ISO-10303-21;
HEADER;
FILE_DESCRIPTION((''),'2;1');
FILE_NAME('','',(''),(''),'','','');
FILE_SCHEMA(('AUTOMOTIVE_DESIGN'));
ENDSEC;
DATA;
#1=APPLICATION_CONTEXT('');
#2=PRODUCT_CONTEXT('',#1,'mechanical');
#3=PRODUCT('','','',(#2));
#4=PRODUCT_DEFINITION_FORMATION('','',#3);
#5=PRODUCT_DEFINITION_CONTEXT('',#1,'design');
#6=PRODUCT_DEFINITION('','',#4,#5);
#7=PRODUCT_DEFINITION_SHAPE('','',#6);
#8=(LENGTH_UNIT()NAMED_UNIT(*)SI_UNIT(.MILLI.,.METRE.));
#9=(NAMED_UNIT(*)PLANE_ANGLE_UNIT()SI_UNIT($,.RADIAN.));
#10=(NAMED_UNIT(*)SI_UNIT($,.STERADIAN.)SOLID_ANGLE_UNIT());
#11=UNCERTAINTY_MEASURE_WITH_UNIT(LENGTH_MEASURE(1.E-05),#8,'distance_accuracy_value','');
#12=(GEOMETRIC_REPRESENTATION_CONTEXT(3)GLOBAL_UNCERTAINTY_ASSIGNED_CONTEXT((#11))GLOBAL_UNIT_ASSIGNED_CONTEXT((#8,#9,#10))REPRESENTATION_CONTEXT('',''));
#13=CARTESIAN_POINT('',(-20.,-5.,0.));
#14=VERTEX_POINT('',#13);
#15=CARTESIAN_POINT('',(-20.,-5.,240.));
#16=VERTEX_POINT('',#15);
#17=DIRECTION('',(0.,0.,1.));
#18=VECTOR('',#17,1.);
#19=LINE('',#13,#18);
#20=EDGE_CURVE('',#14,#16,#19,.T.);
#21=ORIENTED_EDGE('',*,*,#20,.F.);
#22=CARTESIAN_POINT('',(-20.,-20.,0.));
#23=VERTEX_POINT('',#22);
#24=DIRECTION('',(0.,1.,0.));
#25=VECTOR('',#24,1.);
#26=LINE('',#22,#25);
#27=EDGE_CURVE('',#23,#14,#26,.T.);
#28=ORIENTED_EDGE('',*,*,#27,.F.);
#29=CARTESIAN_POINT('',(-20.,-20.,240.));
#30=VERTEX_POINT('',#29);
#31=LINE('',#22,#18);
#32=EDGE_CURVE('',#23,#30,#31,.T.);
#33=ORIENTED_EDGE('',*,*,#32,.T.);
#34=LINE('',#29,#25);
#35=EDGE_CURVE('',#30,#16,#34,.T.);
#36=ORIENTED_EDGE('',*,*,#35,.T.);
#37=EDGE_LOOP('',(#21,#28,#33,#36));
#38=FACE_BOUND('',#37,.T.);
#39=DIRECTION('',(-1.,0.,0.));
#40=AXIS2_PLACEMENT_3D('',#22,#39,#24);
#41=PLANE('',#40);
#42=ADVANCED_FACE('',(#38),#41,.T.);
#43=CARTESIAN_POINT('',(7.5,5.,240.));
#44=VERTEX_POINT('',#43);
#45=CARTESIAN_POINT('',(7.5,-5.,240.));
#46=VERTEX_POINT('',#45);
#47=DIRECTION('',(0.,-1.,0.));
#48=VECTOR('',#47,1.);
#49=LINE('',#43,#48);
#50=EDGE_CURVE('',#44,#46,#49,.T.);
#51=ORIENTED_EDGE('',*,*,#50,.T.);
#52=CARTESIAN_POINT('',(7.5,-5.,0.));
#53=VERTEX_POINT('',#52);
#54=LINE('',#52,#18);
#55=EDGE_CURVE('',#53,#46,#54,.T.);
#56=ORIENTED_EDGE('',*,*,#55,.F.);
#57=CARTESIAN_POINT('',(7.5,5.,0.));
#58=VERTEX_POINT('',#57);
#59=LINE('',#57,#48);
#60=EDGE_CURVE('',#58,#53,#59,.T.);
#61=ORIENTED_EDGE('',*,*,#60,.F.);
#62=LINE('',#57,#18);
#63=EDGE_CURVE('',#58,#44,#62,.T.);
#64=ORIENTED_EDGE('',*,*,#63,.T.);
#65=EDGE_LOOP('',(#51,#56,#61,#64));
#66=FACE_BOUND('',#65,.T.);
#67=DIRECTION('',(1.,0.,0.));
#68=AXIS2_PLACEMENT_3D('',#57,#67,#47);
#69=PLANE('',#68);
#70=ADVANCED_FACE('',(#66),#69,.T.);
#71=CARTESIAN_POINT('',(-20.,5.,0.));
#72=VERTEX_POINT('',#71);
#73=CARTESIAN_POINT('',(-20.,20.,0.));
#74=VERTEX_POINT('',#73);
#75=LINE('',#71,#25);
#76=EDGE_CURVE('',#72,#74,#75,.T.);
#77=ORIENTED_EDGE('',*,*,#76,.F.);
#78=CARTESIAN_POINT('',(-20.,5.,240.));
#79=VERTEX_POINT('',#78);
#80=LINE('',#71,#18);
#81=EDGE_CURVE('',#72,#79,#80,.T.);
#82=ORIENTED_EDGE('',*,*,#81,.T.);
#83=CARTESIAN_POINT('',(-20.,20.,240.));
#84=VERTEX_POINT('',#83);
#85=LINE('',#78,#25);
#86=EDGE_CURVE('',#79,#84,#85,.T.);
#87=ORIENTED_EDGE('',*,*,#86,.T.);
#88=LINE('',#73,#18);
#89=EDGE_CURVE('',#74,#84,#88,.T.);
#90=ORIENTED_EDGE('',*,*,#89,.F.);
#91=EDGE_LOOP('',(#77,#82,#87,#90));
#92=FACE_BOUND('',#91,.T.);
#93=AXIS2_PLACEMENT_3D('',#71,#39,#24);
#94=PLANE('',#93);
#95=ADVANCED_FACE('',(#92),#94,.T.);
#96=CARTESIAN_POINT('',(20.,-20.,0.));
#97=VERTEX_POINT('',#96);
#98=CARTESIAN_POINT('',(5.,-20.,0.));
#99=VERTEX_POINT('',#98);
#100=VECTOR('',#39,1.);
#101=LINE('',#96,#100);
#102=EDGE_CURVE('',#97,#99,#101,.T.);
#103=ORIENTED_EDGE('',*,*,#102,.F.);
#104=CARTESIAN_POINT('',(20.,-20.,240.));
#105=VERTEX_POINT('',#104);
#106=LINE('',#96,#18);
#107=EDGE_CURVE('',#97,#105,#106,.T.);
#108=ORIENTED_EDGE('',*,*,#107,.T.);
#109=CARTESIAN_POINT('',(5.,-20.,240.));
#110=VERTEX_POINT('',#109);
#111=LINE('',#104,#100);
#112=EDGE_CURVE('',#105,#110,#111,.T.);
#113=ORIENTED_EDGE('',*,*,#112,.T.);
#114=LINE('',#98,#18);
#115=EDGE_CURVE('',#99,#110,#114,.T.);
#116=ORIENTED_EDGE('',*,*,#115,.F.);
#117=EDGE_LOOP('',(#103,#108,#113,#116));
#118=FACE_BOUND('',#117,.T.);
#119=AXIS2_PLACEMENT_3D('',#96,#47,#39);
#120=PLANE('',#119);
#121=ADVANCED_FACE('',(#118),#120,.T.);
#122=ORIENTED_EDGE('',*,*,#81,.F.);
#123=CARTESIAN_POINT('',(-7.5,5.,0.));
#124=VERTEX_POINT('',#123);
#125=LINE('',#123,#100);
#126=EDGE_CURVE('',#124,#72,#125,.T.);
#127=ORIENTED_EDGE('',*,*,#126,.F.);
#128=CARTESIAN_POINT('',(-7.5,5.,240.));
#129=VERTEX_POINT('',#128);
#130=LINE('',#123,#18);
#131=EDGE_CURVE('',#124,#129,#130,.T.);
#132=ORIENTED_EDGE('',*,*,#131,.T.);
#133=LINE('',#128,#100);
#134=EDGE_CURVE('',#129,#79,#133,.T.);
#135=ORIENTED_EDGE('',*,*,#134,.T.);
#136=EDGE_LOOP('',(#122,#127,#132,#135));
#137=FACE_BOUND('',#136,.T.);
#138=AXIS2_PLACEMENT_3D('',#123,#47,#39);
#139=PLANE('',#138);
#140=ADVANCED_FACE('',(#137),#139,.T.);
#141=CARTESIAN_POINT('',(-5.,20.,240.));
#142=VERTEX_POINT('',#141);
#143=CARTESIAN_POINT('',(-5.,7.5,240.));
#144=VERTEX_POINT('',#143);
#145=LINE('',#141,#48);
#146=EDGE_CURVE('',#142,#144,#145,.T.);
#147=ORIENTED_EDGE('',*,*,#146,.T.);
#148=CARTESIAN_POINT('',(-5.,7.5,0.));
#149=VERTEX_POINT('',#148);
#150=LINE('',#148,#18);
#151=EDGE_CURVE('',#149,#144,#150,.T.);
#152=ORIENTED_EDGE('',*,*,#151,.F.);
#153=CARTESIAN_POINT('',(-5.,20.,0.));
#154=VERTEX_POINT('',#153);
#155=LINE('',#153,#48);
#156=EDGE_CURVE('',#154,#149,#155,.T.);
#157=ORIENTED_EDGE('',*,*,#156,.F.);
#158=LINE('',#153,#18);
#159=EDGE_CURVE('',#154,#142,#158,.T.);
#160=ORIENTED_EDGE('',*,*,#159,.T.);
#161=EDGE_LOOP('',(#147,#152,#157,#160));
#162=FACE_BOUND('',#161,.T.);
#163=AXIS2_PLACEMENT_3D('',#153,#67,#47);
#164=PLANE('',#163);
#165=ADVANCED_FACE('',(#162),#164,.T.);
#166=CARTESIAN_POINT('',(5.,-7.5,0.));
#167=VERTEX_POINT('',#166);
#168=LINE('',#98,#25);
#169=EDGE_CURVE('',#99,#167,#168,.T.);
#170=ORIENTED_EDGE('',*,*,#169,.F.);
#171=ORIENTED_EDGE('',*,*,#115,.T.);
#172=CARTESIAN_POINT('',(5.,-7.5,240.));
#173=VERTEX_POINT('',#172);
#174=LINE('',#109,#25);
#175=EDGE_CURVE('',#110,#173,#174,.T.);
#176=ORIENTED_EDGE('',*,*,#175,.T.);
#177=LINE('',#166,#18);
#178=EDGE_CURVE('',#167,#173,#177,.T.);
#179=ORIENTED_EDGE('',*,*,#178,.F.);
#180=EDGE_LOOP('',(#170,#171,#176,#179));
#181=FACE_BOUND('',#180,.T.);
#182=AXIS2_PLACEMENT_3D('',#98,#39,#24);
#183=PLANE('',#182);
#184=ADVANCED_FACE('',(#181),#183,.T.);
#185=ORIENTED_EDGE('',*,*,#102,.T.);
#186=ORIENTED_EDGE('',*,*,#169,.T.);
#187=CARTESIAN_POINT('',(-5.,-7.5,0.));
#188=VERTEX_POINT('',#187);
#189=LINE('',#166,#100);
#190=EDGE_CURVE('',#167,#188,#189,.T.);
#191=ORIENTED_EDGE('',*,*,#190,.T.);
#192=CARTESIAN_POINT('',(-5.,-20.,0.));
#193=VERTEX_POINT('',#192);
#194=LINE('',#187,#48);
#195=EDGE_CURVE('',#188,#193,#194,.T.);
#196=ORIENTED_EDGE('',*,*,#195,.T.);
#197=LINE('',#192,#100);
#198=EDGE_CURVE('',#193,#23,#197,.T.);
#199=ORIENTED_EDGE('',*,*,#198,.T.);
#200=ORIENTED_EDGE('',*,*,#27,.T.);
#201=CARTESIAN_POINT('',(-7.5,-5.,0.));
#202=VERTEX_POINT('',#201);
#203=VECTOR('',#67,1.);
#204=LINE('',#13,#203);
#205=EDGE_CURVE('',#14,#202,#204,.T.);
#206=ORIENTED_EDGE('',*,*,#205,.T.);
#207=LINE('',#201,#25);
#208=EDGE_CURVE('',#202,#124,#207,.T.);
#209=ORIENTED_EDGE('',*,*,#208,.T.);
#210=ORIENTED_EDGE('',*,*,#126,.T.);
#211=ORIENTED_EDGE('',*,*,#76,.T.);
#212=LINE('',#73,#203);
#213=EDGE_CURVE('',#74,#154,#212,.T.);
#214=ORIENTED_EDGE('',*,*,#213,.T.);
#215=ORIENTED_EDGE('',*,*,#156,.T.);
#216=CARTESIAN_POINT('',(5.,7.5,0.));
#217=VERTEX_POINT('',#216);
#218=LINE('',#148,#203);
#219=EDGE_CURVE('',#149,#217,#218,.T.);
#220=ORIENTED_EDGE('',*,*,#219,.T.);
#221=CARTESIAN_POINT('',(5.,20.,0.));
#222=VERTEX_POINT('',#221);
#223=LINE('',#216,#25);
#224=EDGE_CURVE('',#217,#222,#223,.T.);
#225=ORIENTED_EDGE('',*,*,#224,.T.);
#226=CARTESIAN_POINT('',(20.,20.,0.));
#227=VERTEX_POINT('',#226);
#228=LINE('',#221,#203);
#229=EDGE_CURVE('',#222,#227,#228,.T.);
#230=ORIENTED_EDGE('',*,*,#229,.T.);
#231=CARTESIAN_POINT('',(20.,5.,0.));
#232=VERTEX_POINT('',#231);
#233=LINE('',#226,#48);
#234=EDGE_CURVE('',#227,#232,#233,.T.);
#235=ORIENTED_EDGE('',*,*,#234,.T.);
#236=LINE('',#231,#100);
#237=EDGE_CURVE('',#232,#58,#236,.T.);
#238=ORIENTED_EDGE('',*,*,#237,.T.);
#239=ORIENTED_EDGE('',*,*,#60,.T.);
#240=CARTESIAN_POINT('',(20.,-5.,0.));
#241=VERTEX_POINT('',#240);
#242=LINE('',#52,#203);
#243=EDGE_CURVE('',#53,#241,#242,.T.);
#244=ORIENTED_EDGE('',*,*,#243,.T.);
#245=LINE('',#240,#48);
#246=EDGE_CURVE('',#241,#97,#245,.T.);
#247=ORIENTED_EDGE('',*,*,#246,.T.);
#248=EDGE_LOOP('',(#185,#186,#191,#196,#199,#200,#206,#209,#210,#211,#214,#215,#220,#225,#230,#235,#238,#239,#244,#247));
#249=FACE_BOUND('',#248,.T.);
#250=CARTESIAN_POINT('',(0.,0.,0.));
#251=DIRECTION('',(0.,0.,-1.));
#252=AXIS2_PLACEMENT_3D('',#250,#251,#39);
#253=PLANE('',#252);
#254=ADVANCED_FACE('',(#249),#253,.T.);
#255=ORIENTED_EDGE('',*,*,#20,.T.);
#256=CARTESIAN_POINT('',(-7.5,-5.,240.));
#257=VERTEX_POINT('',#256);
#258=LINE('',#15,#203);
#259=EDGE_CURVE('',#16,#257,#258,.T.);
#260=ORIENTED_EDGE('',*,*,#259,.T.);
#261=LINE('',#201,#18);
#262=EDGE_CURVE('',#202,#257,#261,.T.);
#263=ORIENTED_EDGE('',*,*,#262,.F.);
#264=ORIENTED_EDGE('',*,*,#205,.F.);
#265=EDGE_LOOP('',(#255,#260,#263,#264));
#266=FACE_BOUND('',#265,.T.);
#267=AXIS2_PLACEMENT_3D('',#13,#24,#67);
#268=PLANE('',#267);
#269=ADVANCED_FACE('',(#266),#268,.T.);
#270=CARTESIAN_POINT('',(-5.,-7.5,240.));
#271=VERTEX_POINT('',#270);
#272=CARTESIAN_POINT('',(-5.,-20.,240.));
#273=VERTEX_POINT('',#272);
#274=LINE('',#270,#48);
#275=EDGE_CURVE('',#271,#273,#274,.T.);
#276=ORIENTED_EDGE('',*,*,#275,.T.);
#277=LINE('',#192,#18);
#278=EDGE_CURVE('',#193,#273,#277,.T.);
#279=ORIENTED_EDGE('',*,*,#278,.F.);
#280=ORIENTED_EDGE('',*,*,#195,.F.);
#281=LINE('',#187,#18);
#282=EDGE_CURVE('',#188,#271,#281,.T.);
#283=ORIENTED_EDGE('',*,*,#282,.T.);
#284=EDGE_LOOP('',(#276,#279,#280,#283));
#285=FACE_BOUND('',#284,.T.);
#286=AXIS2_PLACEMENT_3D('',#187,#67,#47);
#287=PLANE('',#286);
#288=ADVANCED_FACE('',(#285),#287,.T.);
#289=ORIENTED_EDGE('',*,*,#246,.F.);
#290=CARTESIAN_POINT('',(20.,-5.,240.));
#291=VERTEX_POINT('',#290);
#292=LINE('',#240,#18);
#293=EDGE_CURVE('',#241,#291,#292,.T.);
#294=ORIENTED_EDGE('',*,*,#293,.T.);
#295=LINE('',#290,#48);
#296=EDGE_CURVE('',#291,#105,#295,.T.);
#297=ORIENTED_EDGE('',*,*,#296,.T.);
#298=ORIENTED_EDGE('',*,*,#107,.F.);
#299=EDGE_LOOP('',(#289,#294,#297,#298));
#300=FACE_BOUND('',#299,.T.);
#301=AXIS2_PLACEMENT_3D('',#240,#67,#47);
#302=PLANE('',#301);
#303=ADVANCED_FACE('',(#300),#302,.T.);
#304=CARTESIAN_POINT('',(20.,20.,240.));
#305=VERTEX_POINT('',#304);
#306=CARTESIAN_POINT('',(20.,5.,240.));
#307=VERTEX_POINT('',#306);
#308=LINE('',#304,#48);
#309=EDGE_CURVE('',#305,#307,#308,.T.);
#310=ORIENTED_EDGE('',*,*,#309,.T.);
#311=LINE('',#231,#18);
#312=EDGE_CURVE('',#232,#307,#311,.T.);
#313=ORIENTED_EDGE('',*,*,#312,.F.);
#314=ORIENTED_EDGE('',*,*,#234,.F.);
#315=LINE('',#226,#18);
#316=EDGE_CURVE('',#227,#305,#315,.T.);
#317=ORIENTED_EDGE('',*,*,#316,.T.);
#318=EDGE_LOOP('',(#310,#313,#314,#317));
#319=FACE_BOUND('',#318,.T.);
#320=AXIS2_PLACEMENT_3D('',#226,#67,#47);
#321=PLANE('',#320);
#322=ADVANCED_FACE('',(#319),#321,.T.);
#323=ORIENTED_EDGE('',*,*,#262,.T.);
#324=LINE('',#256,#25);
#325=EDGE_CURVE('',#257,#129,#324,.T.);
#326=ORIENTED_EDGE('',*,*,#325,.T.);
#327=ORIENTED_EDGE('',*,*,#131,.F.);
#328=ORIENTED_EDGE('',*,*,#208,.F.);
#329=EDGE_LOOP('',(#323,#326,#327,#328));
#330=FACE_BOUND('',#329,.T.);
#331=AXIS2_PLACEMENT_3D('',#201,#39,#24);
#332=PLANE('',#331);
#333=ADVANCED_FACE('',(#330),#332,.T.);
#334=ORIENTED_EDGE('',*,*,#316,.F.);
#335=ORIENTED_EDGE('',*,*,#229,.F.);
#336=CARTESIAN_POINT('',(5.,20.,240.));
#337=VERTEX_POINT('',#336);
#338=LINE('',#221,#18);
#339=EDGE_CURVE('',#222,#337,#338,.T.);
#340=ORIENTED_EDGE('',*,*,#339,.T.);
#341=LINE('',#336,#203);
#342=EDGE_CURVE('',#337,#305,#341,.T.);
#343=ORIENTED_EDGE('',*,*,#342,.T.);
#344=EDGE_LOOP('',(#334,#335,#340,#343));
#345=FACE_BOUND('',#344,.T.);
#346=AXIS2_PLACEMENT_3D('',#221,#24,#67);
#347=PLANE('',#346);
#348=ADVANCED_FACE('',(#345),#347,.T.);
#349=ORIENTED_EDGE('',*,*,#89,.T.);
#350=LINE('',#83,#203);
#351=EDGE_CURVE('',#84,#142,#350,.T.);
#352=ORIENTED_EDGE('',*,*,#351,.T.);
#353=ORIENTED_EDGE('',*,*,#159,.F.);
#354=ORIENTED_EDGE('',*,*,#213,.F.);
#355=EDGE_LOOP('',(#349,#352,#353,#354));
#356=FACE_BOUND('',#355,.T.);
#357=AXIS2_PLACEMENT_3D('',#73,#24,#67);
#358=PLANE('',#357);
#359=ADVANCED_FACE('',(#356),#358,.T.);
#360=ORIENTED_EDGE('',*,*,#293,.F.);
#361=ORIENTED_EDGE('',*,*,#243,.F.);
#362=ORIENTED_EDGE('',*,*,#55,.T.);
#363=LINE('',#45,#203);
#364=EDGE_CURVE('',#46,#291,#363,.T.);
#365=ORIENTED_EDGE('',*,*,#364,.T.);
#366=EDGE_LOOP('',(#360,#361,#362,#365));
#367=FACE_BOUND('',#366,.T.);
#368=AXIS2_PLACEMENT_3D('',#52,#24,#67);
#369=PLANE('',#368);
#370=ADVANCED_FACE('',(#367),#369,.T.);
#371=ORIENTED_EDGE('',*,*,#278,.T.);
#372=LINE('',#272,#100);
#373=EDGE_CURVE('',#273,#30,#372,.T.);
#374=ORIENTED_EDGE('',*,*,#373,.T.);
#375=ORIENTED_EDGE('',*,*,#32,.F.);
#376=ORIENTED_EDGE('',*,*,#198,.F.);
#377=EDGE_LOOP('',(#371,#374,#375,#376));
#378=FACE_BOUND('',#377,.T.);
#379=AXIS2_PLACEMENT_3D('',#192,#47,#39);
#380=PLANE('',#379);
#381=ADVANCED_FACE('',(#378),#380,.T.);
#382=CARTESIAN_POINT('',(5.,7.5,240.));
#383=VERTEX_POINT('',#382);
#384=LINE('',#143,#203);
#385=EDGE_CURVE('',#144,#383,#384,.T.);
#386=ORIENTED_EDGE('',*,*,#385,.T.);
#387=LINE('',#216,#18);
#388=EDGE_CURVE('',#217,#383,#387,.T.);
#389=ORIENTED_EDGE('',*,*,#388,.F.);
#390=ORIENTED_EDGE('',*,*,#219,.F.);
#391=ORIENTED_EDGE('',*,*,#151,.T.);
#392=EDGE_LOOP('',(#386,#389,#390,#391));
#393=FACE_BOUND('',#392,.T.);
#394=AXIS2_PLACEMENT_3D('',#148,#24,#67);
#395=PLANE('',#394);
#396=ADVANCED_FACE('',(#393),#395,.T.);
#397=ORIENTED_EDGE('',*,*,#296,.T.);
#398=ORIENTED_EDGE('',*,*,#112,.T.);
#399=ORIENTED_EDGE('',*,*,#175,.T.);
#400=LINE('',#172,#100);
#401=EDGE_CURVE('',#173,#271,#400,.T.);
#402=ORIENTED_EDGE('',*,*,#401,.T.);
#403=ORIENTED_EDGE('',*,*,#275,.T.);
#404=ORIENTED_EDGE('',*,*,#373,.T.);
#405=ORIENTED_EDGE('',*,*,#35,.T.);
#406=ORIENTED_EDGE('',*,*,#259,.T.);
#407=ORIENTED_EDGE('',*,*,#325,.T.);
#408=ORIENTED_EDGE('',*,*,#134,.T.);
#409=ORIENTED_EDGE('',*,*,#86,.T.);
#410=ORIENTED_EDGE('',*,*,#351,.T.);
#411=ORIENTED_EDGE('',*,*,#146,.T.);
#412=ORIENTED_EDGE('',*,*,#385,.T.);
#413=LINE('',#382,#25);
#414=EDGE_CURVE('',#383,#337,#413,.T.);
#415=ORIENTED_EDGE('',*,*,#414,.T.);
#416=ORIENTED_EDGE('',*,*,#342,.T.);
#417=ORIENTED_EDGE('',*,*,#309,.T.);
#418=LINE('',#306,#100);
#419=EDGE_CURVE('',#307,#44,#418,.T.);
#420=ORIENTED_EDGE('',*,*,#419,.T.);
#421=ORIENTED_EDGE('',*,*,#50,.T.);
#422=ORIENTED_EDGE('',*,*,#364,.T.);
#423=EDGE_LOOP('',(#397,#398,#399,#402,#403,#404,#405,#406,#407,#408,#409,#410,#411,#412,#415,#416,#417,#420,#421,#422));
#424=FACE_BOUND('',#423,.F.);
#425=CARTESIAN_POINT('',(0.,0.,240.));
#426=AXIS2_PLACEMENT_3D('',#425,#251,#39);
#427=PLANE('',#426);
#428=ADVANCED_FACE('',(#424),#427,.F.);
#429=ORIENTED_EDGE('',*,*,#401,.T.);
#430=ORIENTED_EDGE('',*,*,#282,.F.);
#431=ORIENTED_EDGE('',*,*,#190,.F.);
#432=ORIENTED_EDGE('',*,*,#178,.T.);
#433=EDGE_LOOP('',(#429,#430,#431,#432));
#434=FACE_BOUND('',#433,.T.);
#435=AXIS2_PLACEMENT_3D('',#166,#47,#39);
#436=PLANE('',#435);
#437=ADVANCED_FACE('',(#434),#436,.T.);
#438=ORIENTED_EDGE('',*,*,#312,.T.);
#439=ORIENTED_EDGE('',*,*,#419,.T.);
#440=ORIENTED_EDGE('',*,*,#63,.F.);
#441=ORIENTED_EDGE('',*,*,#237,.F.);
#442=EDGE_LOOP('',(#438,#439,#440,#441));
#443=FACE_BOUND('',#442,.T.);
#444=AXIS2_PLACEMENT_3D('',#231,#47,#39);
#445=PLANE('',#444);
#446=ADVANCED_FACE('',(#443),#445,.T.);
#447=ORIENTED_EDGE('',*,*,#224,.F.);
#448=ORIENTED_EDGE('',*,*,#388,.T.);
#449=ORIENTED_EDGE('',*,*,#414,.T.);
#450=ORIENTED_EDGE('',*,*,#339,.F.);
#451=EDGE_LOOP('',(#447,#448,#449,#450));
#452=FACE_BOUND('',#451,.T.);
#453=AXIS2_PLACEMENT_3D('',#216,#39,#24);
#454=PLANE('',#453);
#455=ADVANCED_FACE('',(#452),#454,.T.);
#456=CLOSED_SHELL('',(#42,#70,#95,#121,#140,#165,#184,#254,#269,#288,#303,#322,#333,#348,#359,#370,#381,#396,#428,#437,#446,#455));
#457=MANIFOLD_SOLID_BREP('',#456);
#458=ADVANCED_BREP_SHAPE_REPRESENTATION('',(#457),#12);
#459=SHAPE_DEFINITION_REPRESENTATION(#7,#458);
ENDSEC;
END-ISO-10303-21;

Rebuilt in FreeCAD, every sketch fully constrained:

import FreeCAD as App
import Part
import Sketcher

doc = App.newDocument("Part")
params = doc.addObject("Spreadsheet::Sheet", "Params")
for row, (alias, value) in enumerate([
    ("sketch1_width", "15 mm"),
    ("sketch1_width2", "10 mm"),
    ("sketch1_width3", "12.5 mm"),
    ("pad1_length", "240 mm"),
], start=1):
    params.set(f"A{row}", alias)
    params.set(f"B{row}", "=" + value)
    params.setAlias(f"B{row}", alias)

body = doc.addObject("PartDesign::Body", "Body")

# Sketch on XY plane
sketch1 = body.newObject("Sketcher::SketchObject", "Sketch")
sketch1.AttachmentSupport = (doc.getObject("XY_Plane"), [""])
sketch1.MapMode = "FlatFace"
sketch1.addGeometry([
    Part.LineSegment(App.Vector(-20, -5, 0), App.Vector(-20, -20, 0)),  # 0
    Part.LineSegment(App.Vector(-20, -20, 0), App.Vector(-5, -20, 0)),  # 1
    Part.LineSegment(App.Vector(-5, -20, 0), App.Vector(-5, -8, 0)),  # 2
    Part.LineSegment(App.Vector(-5, -8, 0), App.Vector(5, -8, 0)),  # 3
    Part.LineSegment(App.Vector(5, -8, 0), App.Vector(5, -20, 0)),  # 4
    Part.LineSegment(App.Vector(5, -20, 0), App.Vector(20, -20, 0)),  # 5
    Part.LineSegment(App.Vector(20, -20, 0), App.Vector(20, -5, 0)),  # 6
    Part.LineSegment(App.Vector(20, -5, 0), App.Vector(8, -5, 0)),  # 7
    Part.LineSegment(App.Vector(8, -5, 0), App.Vector(8, 5, 0)),  # 8
    Part.LineSegment(App.Vector(8, 5, 0), App.Vector(20, 5, 0)),  # 9
    Part.LineSegment(App.Vector(20, 5, 0), App.Vector(20, 20, 0)),  # 10
    Part.LineSegment(App.Vector(20, 20, 0), App.Vector(5, 20, 0)),  # 11
    Part.LineSegment(App.Vector(5, 20, 0), App.Vector(5, 8, 0)),  # 12
    Part.LineSegment(App.Vector(5, 8, 0), App.Vector(-5, 8, 0)),  # 13
    Part.LineSegment(App.Vector(-5, 8, 0), App.Vector(-5, 20, 0)),  # 14
    Part.LineSegment(App.Vector(-5, 20, 0), App.Vector(-20, 20, 0)),  # 15
    Part.LineSegment(App.Vector(-20, 20, 0), App.Vector(-20, 5, 0)),  # 16
    Part.LineSegment(App.Vector(-20, 5, 0), App.Vector(-8, 5, 0)),  # 17
    Part.LineSegment(App.Vector(-8, 5, 0), App.Vector(-8, -5, 0)),  # 18
    Part.LineSegment(App.Vector(-8, -5, 0), App.Vector(-20, -5, 0)),  # 19
], False)
sketch1.addConstraint([
    Sketcher.Constraint("Coincident", 0, 2, 1, 1),
    Sketcher.Constraint("Coincident", 1, 2, 2, 1),
    Sketcher.Constraint("Coincident", 2, 2, 3, 1),
    Sketcher.Constraint("Coincident", 3, 2, 4, 1),
    Sketcher.Constraint("Coincident", 4, 2, 5, 1),
    Sketcher.Constraint("Coincident", 5, 2, 6, 1),
    Sketcher.Constraint("Coincident", 6, 2, 7, 1),
    Sketcher.Constraint("Coincident", 7, 2, 8, 1),
    Sketcher.Constraint("Coincident", 8, 2, 9, 1),
    Sketcher.Constraint("Coincident", 9, 2, 10, 1),
    Sketcher.Constraint("Coincident", 10, 2, 11, 1),
    Sketcher.Constraint("Coincident", 11, 2, 12, 1),
    Sketcher.Constraint("Coincident", 12, 2, 13, 1),
    Sketcher.Constraint("Coincident", 13, 2, 14, 1),
    Sketcher.Constraint("Coincident", 14, 2, 15, 1),
    Sketcher.Constraint("Coincident", 15, 2, 16, 1),
    Sketcher.Constraint("Coincident", 16, 2, 17, 1),
    Sketcher.Constraint("Coincident", 17, 2, 18, 1),
    Sketcher.Constraint("Coincident", 18, 2, 19, 1),
    Sketcher.Constraint("Coincident", 19, 2, 0, 1),
    Sketcher.Constraint("Vertical", 0),
    Sketcher.Constraint("Horizontal", 1),
    Sketcher.Constraint("Vertical", 2),
    Sketcher.Constraint("Horizontal", 3),
    Sketcher.Constraint("Vertical", 4),
    Sketcher.Constraint("Horizontal", 5),
    Sketcher.Constraint("Vertical", 6),
    Sketcher.Constraint("Horizontal", 7),
    Sketcher.Constraint("Vertical", 8),
    Sketcher.Constraint("Horizontal", 9),
    Sketcher.Constraint("Vertical", 10),
    Sketcher.Constraint("Horizontal", 11),
    Sketcher.Constraint("Vertical", 12),
    Sketcher.Constraint("Horizontal", 13),
    Sketcher.Constraint("Vertical", 14),
    Sketcher.Constraint("Horizontal", 15),
    Sketcher.Constraint("Vertical", 16),
    Sketcher.Constraint("Horizontal", 17),
    Sketcher.Constraint("Vertical", 18),
    Sketcher.Constraint("Horizontal", 19),
    Sketcher.Constraint("Symmetric", 0, 2, 10, 2, -1, 1),
    Sketcher.Constraint("Symmetric", 2, 2, 12, 2, -1, 1),
    Sketcher.Constraint("Symmetric", 4, 2, 14, 2, -1, 1),
    Sketcher.Constraint("Symmetric", 6, 2, 16, 2, -1, 1),
    Sketcher.Constraint("Symmetric", 8, 2, 18, 2, -1, 1),
    Sketcher.Constraint("Symmetric", 1, 2, 4, 2, -2),
    Sketcher.Constraint("Symmetric", 9, 2, 16, 2, -2),
    Sketcher.Constraint("Equal", 15, 0),
    Sketcher.Constraint("Equal", 19, 2),
    Sketcher.Constraint("Equal", 13, 8),
    Sketcher.Constraint("DistanceX", 1, 1, 1, 2, 15.0),
    Sketcher.Constraint("DistanceX", 3, 1, 3, 2, 10.0),
    Sketcher.Constraint("DistanceX", 7, 2, 7, 1, 12.5),
])
sketch1.setExpression("Constraints[50]", "Params.sketch1_width")
sketch1.setExpression("Constraints[51]", "Params.sketch1_width2")
sketch1.setExpression("Constraints[52]", "Params.sketch1_width3")
pad1 = body.newObject("PartDesign::Pad", "Pad")
pad1.Profile = sketch1
pad1.setExpression("Length", "Params.pad1_length")

doc.recompute()
